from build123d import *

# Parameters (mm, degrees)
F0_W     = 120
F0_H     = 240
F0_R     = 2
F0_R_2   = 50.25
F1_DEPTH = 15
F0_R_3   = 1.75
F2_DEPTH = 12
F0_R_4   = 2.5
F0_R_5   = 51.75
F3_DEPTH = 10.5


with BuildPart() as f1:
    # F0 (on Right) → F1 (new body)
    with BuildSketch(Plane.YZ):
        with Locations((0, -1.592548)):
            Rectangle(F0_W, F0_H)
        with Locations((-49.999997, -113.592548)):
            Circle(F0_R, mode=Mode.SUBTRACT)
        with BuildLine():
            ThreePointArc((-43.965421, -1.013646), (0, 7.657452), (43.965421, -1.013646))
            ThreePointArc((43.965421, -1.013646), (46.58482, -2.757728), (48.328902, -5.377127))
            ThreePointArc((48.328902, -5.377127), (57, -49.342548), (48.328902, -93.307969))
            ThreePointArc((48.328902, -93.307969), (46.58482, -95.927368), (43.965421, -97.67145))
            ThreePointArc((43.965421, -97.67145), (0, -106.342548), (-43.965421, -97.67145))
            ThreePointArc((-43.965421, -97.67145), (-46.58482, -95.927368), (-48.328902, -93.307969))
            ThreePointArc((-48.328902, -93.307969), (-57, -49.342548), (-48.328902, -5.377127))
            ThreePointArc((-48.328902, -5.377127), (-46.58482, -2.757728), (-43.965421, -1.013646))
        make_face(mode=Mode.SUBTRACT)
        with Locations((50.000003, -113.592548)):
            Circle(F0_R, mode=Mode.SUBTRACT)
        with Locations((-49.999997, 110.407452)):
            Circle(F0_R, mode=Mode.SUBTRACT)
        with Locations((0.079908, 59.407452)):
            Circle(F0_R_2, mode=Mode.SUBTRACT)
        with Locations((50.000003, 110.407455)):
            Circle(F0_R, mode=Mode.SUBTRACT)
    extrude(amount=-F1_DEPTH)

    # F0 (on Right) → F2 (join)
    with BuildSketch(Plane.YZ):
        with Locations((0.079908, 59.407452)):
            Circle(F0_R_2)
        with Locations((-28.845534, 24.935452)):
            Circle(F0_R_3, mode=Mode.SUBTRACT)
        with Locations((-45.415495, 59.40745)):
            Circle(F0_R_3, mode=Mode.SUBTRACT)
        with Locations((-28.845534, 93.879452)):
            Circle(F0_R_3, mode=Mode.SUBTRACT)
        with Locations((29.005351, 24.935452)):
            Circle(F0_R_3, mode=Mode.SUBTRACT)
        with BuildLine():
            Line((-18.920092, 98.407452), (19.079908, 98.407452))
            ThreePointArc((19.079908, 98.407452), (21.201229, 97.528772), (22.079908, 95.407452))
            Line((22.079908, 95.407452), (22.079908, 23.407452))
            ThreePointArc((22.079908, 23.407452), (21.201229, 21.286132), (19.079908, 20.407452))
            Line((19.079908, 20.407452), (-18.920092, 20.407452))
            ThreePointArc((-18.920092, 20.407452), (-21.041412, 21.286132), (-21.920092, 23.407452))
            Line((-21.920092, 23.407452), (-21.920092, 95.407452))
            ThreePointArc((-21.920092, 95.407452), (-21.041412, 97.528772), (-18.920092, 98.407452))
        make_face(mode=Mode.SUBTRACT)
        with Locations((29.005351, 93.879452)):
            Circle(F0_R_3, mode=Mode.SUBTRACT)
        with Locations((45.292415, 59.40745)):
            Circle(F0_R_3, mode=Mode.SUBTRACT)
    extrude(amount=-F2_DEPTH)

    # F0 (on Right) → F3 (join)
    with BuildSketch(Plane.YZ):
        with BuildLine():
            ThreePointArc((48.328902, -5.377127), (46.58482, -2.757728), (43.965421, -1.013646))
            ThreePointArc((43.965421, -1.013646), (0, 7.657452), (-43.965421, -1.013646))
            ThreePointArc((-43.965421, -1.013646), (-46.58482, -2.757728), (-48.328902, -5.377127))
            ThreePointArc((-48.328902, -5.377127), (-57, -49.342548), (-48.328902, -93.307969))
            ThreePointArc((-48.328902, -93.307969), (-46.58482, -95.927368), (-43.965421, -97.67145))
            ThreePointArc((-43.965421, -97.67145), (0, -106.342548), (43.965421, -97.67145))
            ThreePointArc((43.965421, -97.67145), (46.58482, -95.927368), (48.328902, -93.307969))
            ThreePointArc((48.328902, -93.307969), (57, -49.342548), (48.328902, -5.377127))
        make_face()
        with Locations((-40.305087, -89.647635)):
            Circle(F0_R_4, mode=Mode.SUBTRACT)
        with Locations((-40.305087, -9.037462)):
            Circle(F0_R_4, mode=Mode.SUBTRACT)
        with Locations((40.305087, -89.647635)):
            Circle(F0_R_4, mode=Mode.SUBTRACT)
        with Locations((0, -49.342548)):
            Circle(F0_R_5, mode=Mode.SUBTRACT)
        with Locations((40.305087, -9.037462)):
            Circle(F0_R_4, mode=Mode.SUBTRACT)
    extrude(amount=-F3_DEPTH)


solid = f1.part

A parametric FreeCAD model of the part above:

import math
import FreeCAD as App
import Part
import Sketcher

V = App.Vector
Q = App.Units.Quantity


def add_polygon(sketch, points):
    """Adds a closed chain of lines whose ends are joined by coincident constraints."""
    first, n = sketch.GeometryCount, len(points)
    for a, b in zip(points, points[1:] + points[:1]):
        sketch.addGeometry(Part.LineSegment(App.Vector(*a, 0), App.Vector(*b, 0)), False)
    for i in range(n):
        sketch.addConstraint(Sketcher.Constraint("Coincident", first + i, 2, first + (i + 1) % n, 1))

doc = App.newDocument("Part")
params = doc.addObject("Spreadsheet::Sheet", "Params")
for row, (alias, value) in enumerate([
    ("sketch1_diameter", "4 mm"),
    ("sketch1_diameter2", "100.5 mm"),
    ("sketch1_width", "120 mm"),
    ("sketch1_height", "240 mm"),
    ("pad1_length", "15 mm"),
    ("sketch2_radius", "3.000001 mm"),
    ("sketch2_diameter", "100.5 mm"),
    ("sketch2_diameter2", "3.5 mm"),
    ("sketch2_width", "38 mm"),
    ("sketch2_height", "72 mm"),
    ("pad2_length", "12 mm"),
    ("sketch3_diameter", "5 mm"),
    ("sketch3_diameter2", "103.5 mm"),
    ("pad3_length", "10.5 mm"),
], start=1):
    params.set(f"A{row}", alias)
    params.set(f"B{row}", "=" + value)
    params.setAlias(f"B{row}", alias)

body = doc.addObject("PartDesign::Body", "Body")

sketch1 = body.newObject("Sketcher::SketchObject", "Sketch")
sketch1.AttachmentSupport = (doc.getObject("YZ_Plane"), [""])
sketch1.MapMode = "FlatFace"
add_polygon(sketch1, [(-60, 118.4), (-60, -121.6), (60, -121.6), (60, 118.4)])
sketch1.addGeometry(Part.Circle(V(-50, -113.6, 0), V(0, 0, 1), 2), False)
sketch1.addGeometry(Part.Circle(V(50, -113.6, 0), V(0, 0, 1), 2), False)
sketch1.addGeometry(Part.ArcOfCircle(Part.Circle(V(-40.9, -8.4, 0), V(0, 0, 1), 8), math.radians(112), math.radians(158)), False)
sketch1.addGeometry(Part.ArcOfCircle(Part.Circle(V(0, -108.1, 0), V(0, 0, 1), 115.8), math.radians(68), math.radians(112)), False)
sketch1.addGeometry(Part.ArcOfCircle(Part.Circle(V(40.9, -8.4, 0), V(0, 0, 1), 8), math.radians(22), math.radians(68)), False)
sketch1.addGeometry(Part.ArcOfCircle(Part.Circle(V(-58.8, -49.3, 0), V(0, 0, 1), 115.8), math.radians(-22), math.radians(22)), False)
sketch1.addGeometry(Part.ArcOfCircle(Part.Circle(V(40.9, -90.3, 0), V(0, 0, 1), 8), math.radians(-68), math.radians(-22)), False)
sketch1.addGeometry(Part.ArcOfCircle(Part.Circle(V(0, 9.5, 0), V(0, 0, 1), 115.8), math.radians(-112), math.radians(-68)), False)
sketch1.addGeometry(Part.ArcOfCircle(Part.Circle(V(-40.9, -90.3, 0), V(0, 0, 1), 8), math.radians(-158), math.radians(-112)), False)
sketch1.addGeometry(Part.ArcOfCircle(Part.Circle(V(58.8, -49.3, 0), V(0, 0, 1), 115.8), math.radians(158), math.radians(202)), False)
sketch1.addGeometry(Part.Circle(V(-50, 110.4, 0), V(0, 0, 1), 2), False)
sketch1.addGeometry(Part.Circle(V(0.1, 59.4, 0), V(0, 0, 1), 50.2), False)
sketch1.addGeometry(Part.Circle(V(50, 110.4, 0), V(0, 0, 1), 2), False)
sketch1.addConstraint(Sketcher.Constraint("Tangent", 6, 1, 7, 2))
sketch1.addConstraint(Sketcher.Constraint("Tangent", 7, 1, 8, 2))
sketch1.addConstraint(Sketcher.Constraint("Tangent", 8, 1, 9, 2))
sketch1.addConstraint(Sketcher.Constraint("Tangent", 9, 1, 10, 2))
sketch1.addConstraint(Sketcher.Constraint("Tangent", 10, 1, 11, 2))
sketch1.addConstraint(Sketcher.Constraint("Tangent", 11, 1, 12, 2))
sketch1.addConstraint(Sketcher.Constraint("Tangent", 12, 1, 13, 2))
sketch1.addConstraint(Sketcher.Constraint("Tangent", 13, 1, 6, 2))
sketch1.addConstraint(Sketcher.Constraint("Vertical", 0))
sketch1.addConstraint(Sketcher.Constraint("Horizontal", 1))
sketch1.addConstraint(Sketcher.Constraint("Vertical", 2))
sketch1.addConstraint(Sketcher.Constraint("Horizontal", 3))
sketch1.addConstraint(Sketcher.Constraint("Equal", 4, 5))
sketch1.addConstraint(Sketcher.Constraint("Equal", 6, 8))
sketch1.addConstraint(Sketcher.Constraint("Equal", 7, 9))
sketch1.addConstraint(Sketcher.Constraint("Equal", 8, 10))
sketch1.addConstraint(Sketcher.Constraint("Equal", 9, 11))
sketch1.addConstraint(Sketcher.Constraint("Equal", 10, 12))
sketch1.addConstraint(Sketcher.Constraint("Equal", 11, 13))
sketch1.addConstraint(Sketcher.Constraint("Equal", 5, 14))
sketch1.addConstraint(Sketcher.Constraint("Equal", 14, 16))
sketch1.addConstraint(Sketcher.Constraint("Symmetric", 4, 3, 5, 3, -2))
sketch1.addConstraint(Sketcher.Constraint("Symmetric", 6, 3, 8, 3, -2))
sketch1.addConstraint(Sketcher.Constraint("Symmetric", 10, 3, 12, 3, -2))
sketch1.addConstraint(Sketcher.Constraint("Symmetric", 14, 3, 16, 3, -2))
sketch1.addConstraint(Sketcher.Constraint("Vertical", 8, 3, 10, 3))
sketch1.addConstraint(Sketcher.Constraint("Vertical", 4, 3, 14, 3))
sketch1.addConstraint(Sketcher.Constraint("Diameter", 4, Q("4 mm")))
sketch1.addConstraint(Sketcher.Constraint("Diameter", 15, Q("100.5 mm")))
sketch1.addConstraint(Sketcher.Constraint("DistanceX", 1, 1, 1, 2, Q("120 mm")))
sketch1.addConstraint(Sketcher.Constraint("DistanceY", 0, 2, 0, 1, Q("240 mm")))
sketch1.addConstraint(Sketcher.Constraint("DistanceX", 0, 2, -1, 1, Q("60 mm")))
sketch1.addConstraint(Sketcher.Constraint("DistanceX", 4, 3, 5, 3, Q("100 mm")))
sketch1.addConstraint(Sketcher.Constraint("DistanceY", 15, 3, 14, 3, Q("51 mm")))
sketch1.addConstraint(Sketcher.Constraint("DistanceY", 0, 2, 4, 3, Q("8 mm")))
sketch1.addConstraint(Sketcher.Constraint("DistanceY", 15, 3, 2, 2, Q("59 mm")))
sketch1.addConstraint(Sketcher.Constraint("Radius", 7, Q("115.79538 mm")))
sketch1.addConstraint(Sketcher.Constraint("DistanceY", 4, 3, 9, 3, Q("64.25 mm")))
sketch1.addConstraint(Sketcher.Constraint("Radius", 6, Q("7.999993 mm")))
sketch1.addConstraint(Sketcher.Constraint("DistanceX", -1, 1, 8, 1, Q("48.328902 mm")))
sketch1.addConstraint(Sketcher.Constraint("DistanceY", 9, 3, 6, 1, Q("48.328902 mm")))
sketch1.addConstraint(Sketcher.Constraint("DistanceY", 7, 3, -1, 1, Q("108.137928 mm")))
sketch1.addConstraint(Sketcher.Constraint("DistanceX", -1, 1, 15, 3, Q("0.079908 mm")))
sketch1.setExpression("Constraints[31]", "Params.sketch1_diameter")
sketch1.setExpression("Constraints[32]", "Params.sketch1_diameter2")
sketch1.setExpression("Constraints[33]", "Params.sketch1_width")
sketch1.setExpression("Constraints[34]", "Params.sketch1_height")
pad1 = body.newObject("PartDesign::Pad", "Pad")
pad1.Profile = sketch1
pad1.setExpression("Length", "Params.pad1_length")
pad1.Reversed = True

sketch2 = body.newObject("Sketcher::SketchObject", "Sketch001")
sketch2.AttachmentSupport = (doc.getObject("YZ_Plane"), [""])
sketch2.MapMode = "FlatFace"
sketch2.addGeometry(Part.Circle(V(0.1, 59.4, 0), V(0, 0, 1), 50.2), False)
sketch2.addGeometry(Part.Circle(V(-28.8, 24.9, 0), V(0, 0, 1), 1.8), False)
sketch2.addGeometry(Part.Circle(V(-45.4, 59.4, 0), V(0, 0, 1), 1.8), False)
sketch2.addGeometry(Part.Circle(V(29, 24.9, 0), V(0, 0, 1), 1.8), False)
sketch2.addGeometry(Part.ArcOfCircle(Part.Circle(V(-18.9, 95.4, 0), V(0, 0, 1), 3), math.radians(90), math.radians(180)), False)
sketch2.addGeometry(Part.LineSegment(V(-18.9, 98.4, 0), V(19.1, 98.4, 0)), False)
sketch2.addGeometry(Part.ArcOfCircle(Part.Circle(V(19.1, 95.4, 0), V(0, 0, 1), 3), math.radians(0), math.radians(90)), False)
sketch2.addGeometry(Part.LineSegment(V(22.1, 95.4, 0), V(22.1, 23.4, 0)), False)
sketch2.addGeometry(Part.ArcOfCircle(Part.Circle(V(19.1, 23.4, 0), V(0, 0, 1), 3), math.radians(-90), math.radians(0)), False)
sketch2.addGeometry(Part.LineSegment(V(19.1, 20.4, 0), V(-18.9, 20.4, 0)), False)
sketch2.addGeometry(Part.ArcOfCircle(Part.Circle(V(-18.9, 23.4, 0), V(0, 0, 1), 3), math.radians(-180), math.radians(-90)), False)
sketch2.addGeometry(Part.LineSegment(V(-21.9, 23.4, 0), V(-21.9, 95.4, 0)), False)
sketch2.addGeometry(Part.Circle(V(45.3, 59.4, 0), V(0, 0, 1), 1.8), False)
sketch2.addGeometry(Part.Circle(V(-28.8, 93.9, 0), V(0, 0, 1), 1.8), False)
sketch2.addGeometry(Part.Circle(V(29, 93.9, 0), V(0, 0, 1), 1.8), False)
sketch2.addConstraint(Sketcher.Constraint("Tangent", 4, 1, 5, 1))
sketch2.addConstraint(Sketcher.Constraint("Tangent", 5, 2, 6, 2))
sketch2.addConstraint(Sketcher.Constraint("Tangent", 6, 1, 7, 1))
sketch2.addConstraint(Sketcher.Constraint("Tangent", 7, 2, 8, 2))
sketch2.addConstraint(Sketcher.Constraint("Tangent", 8, 1, 9, 1))
sketch2.addConstraint(Sketcher.Constraint("Tangent", 9, 2, 10, 2))
sketch2.addConstraint(Sketcher.Constraint("Tangent", 10, 1, 11, 1))
sketch2.addConstraint(Sketcher.Constraint("Tangent", 11, 2, 4, 2))
sketch2.addConstraint(Sketcher.Constraint("Horizontal", 5))
sketch2.addConstraint(Sketcher.Constraint("Vertical", 7))
sketch2.addConstraint(Sketcher.Constraint("Horizontal", 9))
sketch2.addConstraint(Sketcher.Constraint("Vertical", 11))
sketch2.addConstraint(Sketcher.Constraint("Equal", 1, 2))
sketch2.addConstraint(Sketcher.Constraint("Equal", 2, 3))
sketch2.addConstraint(Sketcher.Constraint("Equal", 4, 6))
sketch2.addConstraint(Sketcher.Constraint("Equal", 6, 8))
sketch2.addConstraint(Sketcher.Constraint("Equal", 8, 10))
sketch2.addConstraint(Sketcher.Constraint("Equal", 3, 12))
sketch2.addConstraint(Sketcher.Constraint("Equal", 12, 13))
sketch2.addConstraint(Sketcher.Constraint("Equal", 13, 14))
sketch2.addConstraint(Sketcher.Constraint("Horizontal", 1, 3, 3, 3))
sketch2.addConstraint(Sketcher.Constraint("Horizontal", 2, 3, 12, 3))
sketch2.addConstraint(Sketcher.Constraint("Horizontal", 13, 3, 14, 3))
sketch2.addConstraint(Sketcher.Constraint("Vertical", 1, 3, 13, 3))
sketch2.addConstraint(Sketcher.Constraint("Vertical", 3, 3, 14, 3))
sketch2.addConstraint(Sketcher.Constraint("Radius", 4, Q("3.000001 mm")))
sketch2.addConstraint(Sketcher.Constraint("Diameter", 0, Q("100.5 mm")))
sketch2.addConstraint(Sketcher.Constraint("Diameter", 1, Q("3.5 mm")))
sketch2.addConstraint(Sketcher.Constraint("DistanceX", 5, 1, 5, 2, Q("38 mm")))
sketch2.addConstraint(Sketcher.Constraint("DistanceY", 7, 2, 7, 1, Q("72 mm")))
sketch2.addConstraint(Sketcher.Constraint("DistanceX", 4, 3, 0, 3, Q("18.999999 mm")))
sketch2.addConstraint(Sketcher.Constraint("DistanceY", 0, 3, 4, 3, Q("35.999999 mm")))
sketch2.addConstraint(Sketcher.Constraint("DistanceY", 2, 3, 4, 3, Q("36.000001 mm")))
sketch2.addConstraint(Sketcher.Constraint("DistanceY", 1, 3, 0, 3, Q("34.472 mm")))
sketch2.addConstraint(Sketcher.Constraint("DistanceY", 13, 3, 4, 3, Q("1.527999 mm")))
sketch2.addConstraint(Sketcher.Constraint("DistanceX", -1, 1, 0, 3, Q("0.079908 mm")))
sketch2.addConstraint(Sketcher.Constraint("DistanceY", -1, 1, 2, 3, Q("59.40745 mm")))
sketch2.addConstraint(Sketcher.Constraint("DistanceX", -1, 1, 3, 3, Q("29.005351 mm")))
sketch2.addConstraint(Sketcher.Constraint("DistanceX", 2, 3, 1, 3, Q("16.569961 mm")))
sketch2.addConstraint(Sketcher.Constraint("DistanceX", 1, 3, -1, 1, Q("28.845534 mm")))
sketch2.addConstraint(Sketcher.Constraint("DistanceX", -1, 1, 12, 3, Q("45.292415 mm")))
sketch2.setExpression("Constraints[25]", "Params.sketch2_radius")
sketch2.setExpression("Constraints[26]", "Params.sketch2_diameter")
sketch2.setExpression("Constraints[27]", "Params.sketch2_diameter2")
sketch2.setExpression("Constraints[28]", "Params.sketch2_width")
sketch2.setExpression("Constraints[29]", "Params.sketch2_height")
pad2 = body.newObject("PartDesign::Pad", "Pad001")
pad2.Profile = sketch2
pad2.setExpression("Length", "Params.pad2_length")
pad2.Reversed = True

sketch3 = body.newObject("Sketcher::SketchObject", "Sketch002")
sketch3.AttachmentSupport = (doc.getObject("YZ_Plane"), [""])
sketch3.MapMode = "FlatFace"
sketch3.addGeometry(Part.ArcOfCircle(Part.Circle(V(40.9, -8.4, 0), V(0, 0, 1), 8), math.radians(22), math.radians(68)), False)
sketch3.addGeometry(Part.ArcOfCircle(Part.Circle(V(0, -108.1, 0), V(0, 0, 1), 115.8), math.radians(68), math.radians(112)), False)
sketch3.addGeometry(Part.ArcOfCircle(Part.Circle(V(-40.9, -8.4, 0), V(0, 0, 1), 8), math.radians(112), math.radians(158)), False)
sketch3.addGeometry(Part.ArcOfCircle(Part.Circle(V(58.8, -49.3, 0), V(0, 0, 1), 115.8), math.radians(158), math.radians(202)), False)
sketch3.addGeometry(Part.ArcOfCircle(Part.Circle(V(-40.9, -90.3, 0), V(0, 0, 1), 8), math.radians(-158), math.radians(-112)), False)
sketch3.addGeometry(Part.ArcOfCircle(Part.Circle(V(0, 9.5, 0), V(0, 0, 1), 115.8), math.radians(-112), math.radians(-68)), False)
sketch3.addGeometry(Part.ArcOfCircle(Part.Circle(V(40.9, -90.3, 0), V(0, 0, 1), 8), math.radians(-68), math.radians(-22)), False)
sketch3.addGeometry(Part.ArcOfCircle(Part.Circle(V(-58.8, -49.3, 0), V(0, 0, 1), 115.8), math.radians(-22), math.radians(22)), False)
sketch3.addGeometry(Part.Circle(V(-40.3, -89.6, 0), V(0, 0, 1), 2.5), False)
sketch3.addGeometry(Part.Circle(V(40.3, -89.6, 0), V(0, 0, 1), 2.5), False)
sketch3.addGeometry(Part.Circle(V(-40.3, -9, 0), V(0, 0, 1), 2.5), False)
sketch3.addGeometry(Part.Circle(V(0, -49.3, 0), V(0, 0, 1), 51.8), False)
sketch3.addGeometry(Part.Circle(V(40.3, -9, 0), V(0, 0, 1), 2.5), False)
sketch3.addConstraint(Sketcher.Constraint("Tangent", 0, 2, 1, 1))
sketch3.addConstraint(Sketcher.Constraint("Tangent", 1, 2, 2, 1))
sketch3.addConstraint(Sketcher.Constraint("Tangent", 2, 2, 3, 1))
sketch3.addConstraint(Sketcher.Constraint("Tangent", 3, 2, 4, 1))
sketch3.addConstraint(Sketcher.Constraint("Tangent", 4, 2, 5, 1))
sketch3.addConstraint(Sketcher.Constraint("Tangent", 5, 2, 6, 1))
sketch3.addConstraint(Sketcher.Constraint("Tangent", 6, 2, 7, 1))
sketch3.addConstraint(Sketcher.Constraint("Tangent", 7, 2, 0, 1))
sketch3.addConstraint(Sketcher.Constraint("Equal", 0, 2))
sketch3.addConstraint(Sketcher.Constraint("Equal", 1, 3))
sketch3.addConstraint(Sketcher.Constraint("Equal", 2, 4))
sketch3.addConstraint(Sketcher.Constraint("Equal", 3, 5))
sketch3.addConstraint(Sketcher.Constraint("Equal", 4, 6))
sketch3.addConstraint(Sketcher.Constraint("Equal", 5, 7))
sketch3.addConstraint(Sketcher.Constraint("Equal", 8, 9))
sketch3.addConstraint(Sketcher.Constraint("Equal", 9, 10))
sketch3.addConstraint(Sketcher.Constraint("Equal", 10, 12))
sketch3.addConstraint(Sketcher.Constraint("Symmetric", 0, 3, 2, 3, -2))
sketch3.addConstraint(Sketcher.Constraint("Symmetric", 4, 3, 6, 3, -2))
sketch3.addConstraint(Sketcher.Constraint("Symmetric", 8, 3, 9, 3, -2))
sketch3.addConstraint(Sketcher.Constraint("Symmetric", 10, 3, 12, 3, -2))
sketch3.addConstraint(Sketcher.Constraint("PointOnObject", 11, 3, -2))
sketch3.addConstraint(Sketcher.Constraint("Horizontal", 7, 3, 11, 3))
sketch3.addConstraint(Sketcher.Constraint("Vertical", 2, 3, 4, 3))
sketch3.addConstraint(Sketcher.Constraint("Vertical", 8, 3, 10, 3))
sketch3.addConstraint(Sketcher.Constraint("Diameter", 8, Q("5 mm")))
sketch3.addConstraint(Sketcher.Constraint("Diameter", 11, Q("103.5 mm")))
sketch3.addConstraint(Sketcher.Constraint("Radius", 1, Q("115.79538 mm")))
sketch3.addConstraint(Sketcher.Constraint("Radius", 0, Q("7.999993 mm")))
sketch3.addConstraint(Sketcher.Constraint("DistanceX", 2, 2, -1, 1, Q("48.328902 mm")))
sketch3.addConstraint(Sketcher.Constraint("DistanceY", 3, 3, 0, 2, Q("48.328902 mm")))
sketch3.addConstraint(Sketcher.Constraint("DistanceY", 1, 3, -1, 1, Q("108.137928 mm")))
sketch3.addConstraint(Sketcher.Constraint("DistanceX", 8, 3, -1, 1, Q("40.305087 mm")))
sketch3.addConstraint(Sketcher.Constraint("DistanceY", 8, 3, -1, 1, Q("89.647635 mm")))
sketch3.addConstraint(Sketcher.Constraint("DistanceY", 10, 3, -1, 1, Q("9.037462 mm")))
sketch3.setExpression("Constraints[25]", "Params.sketch3_diameter")
sketch3.setExpression("Constraints[26]", "Params.sketch3_diameter2")
pad3 = body.newObject("PartDesign::Pad", "Pad002")
pad3.Profile = sketch3
pad3.setExpression("Length", "Params.pad3_length")
pad3.Reversed = True

doc.recompute()
